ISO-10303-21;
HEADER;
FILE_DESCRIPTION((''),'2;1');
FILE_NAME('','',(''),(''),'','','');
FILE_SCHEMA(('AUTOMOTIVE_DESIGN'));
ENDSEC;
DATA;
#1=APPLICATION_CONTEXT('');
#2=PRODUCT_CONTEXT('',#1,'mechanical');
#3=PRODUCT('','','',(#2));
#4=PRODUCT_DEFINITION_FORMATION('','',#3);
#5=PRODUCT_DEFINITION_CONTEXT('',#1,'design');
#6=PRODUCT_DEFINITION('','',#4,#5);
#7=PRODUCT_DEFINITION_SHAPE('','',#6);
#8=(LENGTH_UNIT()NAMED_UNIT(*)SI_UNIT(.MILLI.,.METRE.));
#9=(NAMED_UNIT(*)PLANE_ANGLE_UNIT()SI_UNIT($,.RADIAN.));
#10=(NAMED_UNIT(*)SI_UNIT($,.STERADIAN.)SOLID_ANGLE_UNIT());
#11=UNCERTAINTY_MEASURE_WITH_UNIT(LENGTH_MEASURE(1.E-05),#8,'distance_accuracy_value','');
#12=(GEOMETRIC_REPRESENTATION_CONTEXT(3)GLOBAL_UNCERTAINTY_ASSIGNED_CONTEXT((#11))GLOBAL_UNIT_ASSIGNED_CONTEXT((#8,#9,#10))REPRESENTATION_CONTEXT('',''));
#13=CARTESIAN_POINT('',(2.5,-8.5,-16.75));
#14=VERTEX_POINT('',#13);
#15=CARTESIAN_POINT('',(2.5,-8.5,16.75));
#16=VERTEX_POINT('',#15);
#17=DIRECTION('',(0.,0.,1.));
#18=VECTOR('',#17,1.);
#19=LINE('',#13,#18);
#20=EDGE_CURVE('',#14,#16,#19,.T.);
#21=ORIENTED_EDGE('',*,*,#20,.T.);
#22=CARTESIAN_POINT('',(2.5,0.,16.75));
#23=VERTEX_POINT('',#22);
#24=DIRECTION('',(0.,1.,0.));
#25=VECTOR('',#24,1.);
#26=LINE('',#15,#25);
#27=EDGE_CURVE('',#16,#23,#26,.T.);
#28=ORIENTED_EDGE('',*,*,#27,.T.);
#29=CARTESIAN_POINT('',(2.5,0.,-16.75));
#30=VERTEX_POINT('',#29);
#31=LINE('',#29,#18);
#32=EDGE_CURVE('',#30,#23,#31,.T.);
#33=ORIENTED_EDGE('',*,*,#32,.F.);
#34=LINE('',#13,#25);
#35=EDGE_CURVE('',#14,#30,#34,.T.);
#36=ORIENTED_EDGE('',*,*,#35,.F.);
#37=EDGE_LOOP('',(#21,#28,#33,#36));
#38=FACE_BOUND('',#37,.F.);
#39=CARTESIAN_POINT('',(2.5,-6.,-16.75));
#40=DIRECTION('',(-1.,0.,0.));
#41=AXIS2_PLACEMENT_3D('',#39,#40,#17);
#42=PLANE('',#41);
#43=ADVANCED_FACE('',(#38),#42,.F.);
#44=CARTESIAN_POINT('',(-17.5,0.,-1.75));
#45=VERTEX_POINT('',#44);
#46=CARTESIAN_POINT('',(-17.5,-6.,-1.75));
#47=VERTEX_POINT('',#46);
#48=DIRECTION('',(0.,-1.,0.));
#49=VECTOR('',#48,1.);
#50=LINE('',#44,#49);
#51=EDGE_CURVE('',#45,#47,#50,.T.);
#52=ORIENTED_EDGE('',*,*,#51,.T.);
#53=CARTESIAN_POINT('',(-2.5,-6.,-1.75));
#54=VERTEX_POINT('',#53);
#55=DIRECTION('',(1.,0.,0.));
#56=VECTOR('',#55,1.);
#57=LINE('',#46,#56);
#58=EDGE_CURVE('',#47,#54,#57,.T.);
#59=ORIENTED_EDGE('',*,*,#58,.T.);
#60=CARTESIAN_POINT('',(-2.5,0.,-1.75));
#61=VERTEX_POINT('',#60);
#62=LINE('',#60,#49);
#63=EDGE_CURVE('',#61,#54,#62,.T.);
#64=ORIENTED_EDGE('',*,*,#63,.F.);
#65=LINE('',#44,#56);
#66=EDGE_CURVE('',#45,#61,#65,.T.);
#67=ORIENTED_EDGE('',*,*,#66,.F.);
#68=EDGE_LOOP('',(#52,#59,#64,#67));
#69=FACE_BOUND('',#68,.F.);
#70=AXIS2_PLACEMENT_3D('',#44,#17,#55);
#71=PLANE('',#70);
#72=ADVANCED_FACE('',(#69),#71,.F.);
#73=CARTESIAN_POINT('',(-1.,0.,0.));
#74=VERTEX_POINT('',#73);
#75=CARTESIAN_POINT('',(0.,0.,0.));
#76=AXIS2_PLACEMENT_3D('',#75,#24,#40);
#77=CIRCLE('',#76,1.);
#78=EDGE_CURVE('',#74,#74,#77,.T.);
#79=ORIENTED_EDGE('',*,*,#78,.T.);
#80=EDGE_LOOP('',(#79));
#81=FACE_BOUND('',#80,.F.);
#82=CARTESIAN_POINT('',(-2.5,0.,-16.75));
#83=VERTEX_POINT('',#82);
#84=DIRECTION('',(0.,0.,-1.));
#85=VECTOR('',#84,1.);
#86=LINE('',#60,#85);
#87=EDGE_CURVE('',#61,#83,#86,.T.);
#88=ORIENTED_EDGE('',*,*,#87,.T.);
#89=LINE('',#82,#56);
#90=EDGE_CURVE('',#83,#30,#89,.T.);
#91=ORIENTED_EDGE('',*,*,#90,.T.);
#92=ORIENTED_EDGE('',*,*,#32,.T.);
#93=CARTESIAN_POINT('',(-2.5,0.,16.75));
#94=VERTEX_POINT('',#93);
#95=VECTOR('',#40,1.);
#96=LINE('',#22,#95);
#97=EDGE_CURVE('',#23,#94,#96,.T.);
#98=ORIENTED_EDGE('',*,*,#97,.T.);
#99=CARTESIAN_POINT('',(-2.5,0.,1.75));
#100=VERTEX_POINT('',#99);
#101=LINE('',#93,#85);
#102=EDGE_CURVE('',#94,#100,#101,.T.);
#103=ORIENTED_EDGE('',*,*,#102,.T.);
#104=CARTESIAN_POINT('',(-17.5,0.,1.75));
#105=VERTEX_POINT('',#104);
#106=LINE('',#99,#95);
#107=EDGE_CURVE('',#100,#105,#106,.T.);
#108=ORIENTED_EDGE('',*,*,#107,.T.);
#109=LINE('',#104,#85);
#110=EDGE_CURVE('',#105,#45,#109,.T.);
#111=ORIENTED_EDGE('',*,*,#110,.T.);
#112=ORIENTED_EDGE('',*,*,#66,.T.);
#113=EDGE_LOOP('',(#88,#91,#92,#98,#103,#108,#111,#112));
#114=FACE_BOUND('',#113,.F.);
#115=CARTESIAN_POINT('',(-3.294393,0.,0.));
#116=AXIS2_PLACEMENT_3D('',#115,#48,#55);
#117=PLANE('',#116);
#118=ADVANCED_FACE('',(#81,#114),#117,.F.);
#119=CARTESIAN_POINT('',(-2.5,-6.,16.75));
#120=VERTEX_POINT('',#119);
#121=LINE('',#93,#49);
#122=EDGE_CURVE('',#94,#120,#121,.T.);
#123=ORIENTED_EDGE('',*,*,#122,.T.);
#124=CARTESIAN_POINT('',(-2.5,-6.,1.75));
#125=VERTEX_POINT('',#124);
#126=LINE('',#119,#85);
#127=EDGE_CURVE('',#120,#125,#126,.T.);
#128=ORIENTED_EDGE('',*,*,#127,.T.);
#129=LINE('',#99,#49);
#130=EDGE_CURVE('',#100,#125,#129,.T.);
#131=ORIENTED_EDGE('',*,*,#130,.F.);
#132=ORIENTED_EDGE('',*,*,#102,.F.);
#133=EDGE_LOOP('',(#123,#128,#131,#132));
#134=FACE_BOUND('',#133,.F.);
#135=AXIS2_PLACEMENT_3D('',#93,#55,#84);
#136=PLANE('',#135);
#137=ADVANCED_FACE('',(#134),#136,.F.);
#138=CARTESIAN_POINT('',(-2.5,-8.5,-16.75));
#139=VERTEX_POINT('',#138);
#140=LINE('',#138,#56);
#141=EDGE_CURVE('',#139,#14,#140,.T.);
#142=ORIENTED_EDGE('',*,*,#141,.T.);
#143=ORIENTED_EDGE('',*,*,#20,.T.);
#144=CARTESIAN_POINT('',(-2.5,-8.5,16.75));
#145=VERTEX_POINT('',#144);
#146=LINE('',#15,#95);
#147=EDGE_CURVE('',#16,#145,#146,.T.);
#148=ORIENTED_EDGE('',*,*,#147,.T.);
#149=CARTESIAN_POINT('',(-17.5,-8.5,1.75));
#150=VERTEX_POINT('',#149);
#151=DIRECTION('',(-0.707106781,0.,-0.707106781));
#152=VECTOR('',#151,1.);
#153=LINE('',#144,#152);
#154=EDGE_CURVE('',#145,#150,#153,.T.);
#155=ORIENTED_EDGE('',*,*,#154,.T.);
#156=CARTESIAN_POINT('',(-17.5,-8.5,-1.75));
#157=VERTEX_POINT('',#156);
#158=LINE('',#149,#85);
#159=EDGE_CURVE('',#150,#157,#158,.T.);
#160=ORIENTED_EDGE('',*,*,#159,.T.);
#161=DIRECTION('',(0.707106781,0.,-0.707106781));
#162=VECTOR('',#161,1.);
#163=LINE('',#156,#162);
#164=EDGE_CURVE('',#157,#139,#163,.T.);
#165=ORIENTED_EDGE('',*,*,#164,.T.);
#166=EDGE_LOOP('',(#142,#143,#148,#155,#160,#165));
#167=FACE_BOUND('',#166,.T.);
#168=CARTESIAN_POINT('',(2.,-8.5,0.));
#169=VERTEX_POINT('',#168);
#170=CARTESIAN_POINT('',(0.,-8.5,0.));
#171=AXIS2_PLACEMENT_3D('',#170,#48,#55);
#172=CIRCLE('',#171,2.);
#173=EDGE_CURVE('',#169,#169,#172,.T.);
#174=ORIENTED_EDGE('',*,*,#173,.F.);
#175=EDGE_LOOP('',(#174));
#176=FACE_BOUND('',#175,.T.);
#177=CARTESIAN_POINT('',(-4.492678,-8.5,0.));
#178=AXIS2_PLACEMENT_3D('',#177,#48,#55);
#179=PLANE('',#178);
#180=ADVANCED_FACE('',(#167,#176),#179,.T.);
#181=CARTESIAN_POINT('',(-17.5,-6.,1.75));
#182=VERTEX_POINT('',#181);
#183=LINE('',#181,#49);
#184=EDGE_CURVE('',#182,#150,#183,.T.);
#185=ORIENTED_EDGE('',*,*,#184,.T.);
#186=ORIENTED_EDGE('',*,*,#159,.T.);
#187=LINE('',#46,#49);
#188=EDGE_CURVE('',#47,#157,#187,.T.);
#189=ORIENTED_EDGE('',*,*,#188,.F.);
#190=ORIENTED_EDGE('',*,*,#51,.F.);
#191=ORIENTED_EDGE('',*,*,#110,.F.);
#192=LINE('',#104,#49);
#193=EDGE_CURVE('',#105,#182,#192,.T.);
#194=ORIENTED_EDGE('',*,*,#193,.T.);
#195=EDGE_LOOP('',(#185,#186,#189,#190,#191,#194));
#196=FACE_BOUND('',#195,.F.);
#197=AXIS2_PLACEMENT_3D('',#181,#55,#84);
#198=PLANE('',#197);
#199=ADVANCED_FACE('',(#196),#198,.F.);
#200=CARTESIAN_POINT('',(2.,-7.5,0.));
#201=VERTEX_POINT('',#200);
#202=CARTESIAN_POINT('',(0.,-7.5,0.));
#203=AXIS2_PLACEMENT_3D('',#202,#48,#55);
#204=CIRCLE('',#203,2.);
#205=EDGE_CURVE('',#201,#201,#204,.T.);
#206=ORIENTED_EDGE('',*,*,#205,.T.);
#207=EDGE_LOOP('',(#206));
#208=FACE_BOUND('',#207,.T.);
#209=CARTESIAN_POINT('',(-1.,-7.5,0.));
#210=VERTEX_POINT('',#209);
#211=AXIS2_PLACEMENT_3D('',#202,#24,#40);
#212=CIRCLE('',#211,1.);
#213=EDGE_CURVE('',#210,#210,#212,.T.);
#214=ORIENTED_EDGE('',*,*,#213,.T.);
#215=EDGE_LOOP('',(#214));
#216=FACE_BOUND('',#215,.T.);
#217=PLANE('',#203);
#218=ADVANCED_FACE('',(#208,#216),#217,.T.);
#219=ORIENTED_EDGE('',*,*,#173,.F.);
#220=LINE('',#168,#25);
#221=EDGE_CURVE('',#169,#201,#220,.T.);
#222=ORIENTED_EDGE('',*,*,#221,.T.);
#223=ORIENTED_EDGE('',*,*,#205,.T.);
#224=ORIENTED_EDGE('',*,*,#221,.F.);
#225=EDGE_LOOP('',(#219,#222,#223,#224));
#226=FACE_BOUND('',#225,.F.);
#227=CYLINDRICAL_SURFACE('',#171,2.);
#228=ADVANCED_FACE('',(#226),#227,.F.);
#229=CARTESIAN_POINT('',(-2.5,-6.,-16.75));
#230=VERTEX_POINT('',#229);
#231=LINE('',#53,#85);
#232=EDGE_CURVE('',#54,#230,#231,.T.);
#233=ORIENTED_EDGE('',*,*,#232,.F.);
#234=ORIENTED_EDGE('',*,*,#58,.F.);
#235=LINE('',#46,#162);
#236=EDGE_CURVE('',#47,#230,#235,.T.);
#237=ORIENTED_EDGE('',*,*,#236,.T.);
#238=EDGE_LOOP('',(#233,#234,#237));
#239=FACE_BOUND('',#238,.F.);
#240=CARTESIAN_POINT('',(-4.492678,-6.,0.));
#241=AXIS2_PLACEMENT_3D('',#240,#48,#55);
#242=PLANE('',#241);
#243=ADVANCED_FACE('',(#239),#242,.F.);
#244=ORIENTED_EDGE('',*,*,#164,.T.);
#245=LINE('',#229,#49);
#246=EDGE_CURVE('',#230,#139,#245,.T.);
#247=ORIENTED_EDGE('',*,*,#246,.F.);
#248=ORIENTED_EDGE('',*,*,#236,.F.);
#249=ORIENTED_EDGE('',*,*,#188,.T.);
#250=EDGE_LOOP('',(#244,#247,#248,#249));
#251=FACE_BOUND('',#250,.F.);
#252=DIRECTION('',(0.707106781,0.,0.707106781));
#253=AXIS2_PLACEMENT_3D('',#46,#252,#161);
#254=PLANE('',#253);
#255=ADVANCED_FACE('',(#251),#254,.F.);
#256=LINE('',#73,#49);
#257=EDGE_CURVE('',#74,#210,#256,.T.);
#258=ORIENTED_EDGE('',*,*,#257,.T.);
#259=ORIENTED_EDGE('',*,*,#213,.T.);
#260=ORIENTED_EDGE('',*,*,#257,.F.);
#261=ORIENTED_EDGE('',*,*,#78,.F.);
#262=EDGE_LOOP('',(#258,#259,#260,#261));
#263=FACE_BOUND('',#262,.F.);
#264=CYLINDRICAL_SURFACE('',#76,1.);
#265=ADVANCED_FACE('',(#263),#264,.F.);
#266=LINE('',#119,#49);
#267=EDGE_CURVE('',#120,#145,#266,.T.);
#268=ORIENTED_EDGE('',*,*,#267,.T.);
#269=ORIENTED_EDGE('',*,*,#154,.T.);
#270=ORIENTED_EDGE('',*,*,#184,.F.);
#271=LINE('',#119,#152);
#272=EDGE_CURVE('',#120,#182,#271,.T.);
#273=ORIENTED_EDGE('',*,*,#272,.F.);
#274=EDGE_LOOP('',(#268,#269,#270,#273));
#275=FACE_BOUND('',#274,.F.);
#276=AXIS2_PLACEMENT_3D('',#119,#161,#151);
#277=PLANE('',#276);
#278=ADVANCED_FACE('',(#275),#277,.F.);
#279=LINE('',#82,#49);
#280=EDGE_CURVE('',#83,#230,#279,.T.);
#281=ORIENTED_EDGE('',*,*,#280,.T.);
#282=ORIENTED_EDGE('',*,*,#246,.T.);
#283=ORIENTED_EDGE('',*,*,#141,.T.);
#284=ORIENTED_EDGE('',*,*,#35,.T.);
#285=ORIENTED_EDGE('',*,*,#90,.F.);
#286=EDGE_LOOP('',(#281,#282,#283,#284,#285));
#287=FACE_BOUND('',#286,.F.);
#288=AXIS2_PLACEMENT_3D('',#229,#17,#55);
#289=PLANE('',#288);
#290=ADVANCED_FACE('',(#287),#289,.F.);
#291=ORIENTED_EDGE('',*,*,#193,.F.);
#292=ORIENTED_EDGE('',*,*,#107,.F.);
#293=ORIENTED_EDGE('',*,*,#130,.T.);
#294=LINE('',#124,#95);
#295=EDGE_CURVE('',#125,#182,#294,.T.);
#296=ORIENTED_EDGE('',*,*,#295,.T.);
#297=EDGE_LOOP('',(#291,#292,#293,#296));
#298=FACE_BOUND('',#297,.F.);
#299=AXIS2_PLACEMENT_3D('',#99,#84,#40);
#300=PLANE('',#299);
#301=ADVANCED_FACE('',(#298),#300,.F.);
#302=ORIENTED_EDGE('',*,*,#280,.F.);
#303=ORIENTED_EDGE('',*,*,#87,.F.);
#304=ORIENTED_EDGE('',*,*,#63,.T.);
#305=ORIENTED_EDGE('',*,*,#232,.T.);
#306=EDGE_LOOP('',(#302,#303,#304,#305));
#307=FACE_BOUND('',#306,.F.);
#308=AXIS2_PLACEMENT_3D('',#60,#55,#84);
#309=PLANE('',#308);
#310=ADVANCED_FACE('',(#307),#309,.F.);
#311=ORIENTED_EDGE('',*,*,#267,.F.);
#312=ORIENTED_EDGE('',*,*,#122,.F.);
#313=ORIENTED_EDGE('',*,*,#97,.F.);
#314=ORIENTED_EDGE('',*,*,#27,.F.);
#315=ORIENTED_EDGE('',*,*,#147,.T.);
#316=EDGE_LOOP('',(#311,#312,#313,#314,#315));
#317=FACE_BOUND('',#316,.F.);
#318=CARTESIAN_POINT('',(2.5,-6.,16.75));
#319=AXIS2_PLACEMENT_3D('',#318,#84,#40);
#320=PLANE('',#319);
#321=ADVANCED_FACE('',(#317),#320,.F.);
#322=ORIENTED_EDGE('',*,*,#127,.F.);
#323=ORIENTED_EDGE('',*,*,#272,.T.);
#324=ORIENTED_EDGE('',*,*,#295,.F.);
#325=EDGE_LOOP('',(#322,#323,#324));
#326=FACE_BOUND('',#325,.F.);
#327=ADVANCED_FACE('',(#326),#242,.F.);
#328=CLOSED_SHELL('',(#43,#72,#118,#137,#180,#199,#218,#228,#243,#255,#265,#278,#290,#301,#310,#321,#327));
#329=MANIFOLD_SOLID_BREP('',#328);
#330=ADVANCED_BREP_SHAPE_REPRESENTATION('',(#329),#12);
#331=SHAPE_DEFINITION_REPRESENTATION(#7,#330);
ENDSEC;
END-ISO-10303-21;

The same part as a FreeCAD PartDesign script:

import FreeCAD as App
import Part
import Sketcher
from FreeCAD import Vector


def add_polygon(sketch, points):
    """Adds a closed chain of lines whose ends are joined by coincident constraints."""
    first, n = sketch.GeometryCount, len(points)
    for a, b in zip(points, points[1:] + points[:1]):
        sketch.addGeometry(Part.LineSegment(App.Vector(*a, 0), App.Vector(*b, 0)), False)
    for i in range(n):
        sketch.addConstraint(Sketcher.Constraint("Coincident", first + i, 2, first + (i + 1) % n, 1))

doc = App.newDocument("Part")
body = doc.addObject("PartDesign::Body", "Body")

sketch1 = body.newObject("Sketcher::SketchObject", "Sketch")
sketch1.AttachmentSupport = (doc.getObject("XZ_Plane"), [""])
sketch1.MapMode = "FlatFace"
add_polygon(sketch1, [(2.5, 16.8), (-2.5, 16.8), (-2.5, 1.8), (-17.5, 1.8), (-17.5, -1.8), (-2.5, -1.8), (-2.5, -16.8), (2.5, -16.8)])
sketch1.addConstraint([
    Sketcher.Constraint("Horizontal", 0),
    Sketcher.Constraint("Vertical", 1),
    Sketcher.Constraint("Horizontal", 2),
    Sketcher.Constraint("Vertical", 3),
    Sketcher.Constraint("Horizontal", 4),
    Sketcher.Constraint("Vertical", 5),
    Sketcher.Constraint("Horizontal", 6),
    Sketcher.Constraint("Vertical", 7),
    Sketcher.Constraint("Symmetric", 0, 2, 6, 2, -1, 1),
    Sketcher.Constraint("Symmetric", 1, 2, 4, 2, -1),
    Sketcher.Constraint("Equal", 4, 1),
    Sketcher.Constraint("DistanceX", 0, 2, 0, 1, 5.0),
    Sketcher.Constraint("DistanceX", 2, 2, 2, 1, 15.0),
    Sketcher.Constraint("DistanceY", 3, 2, 3, 1, 3.5),
])
pad1 = body.newObject("PartDesign::Pad", "Pad")
pad1.Profile = sketch1
pad1.Length = 6

sketch2 = body.newObject("Sketcher::SketchObject", "Sketch001")
sketch2.AttachmentSupport = (doc.getObject("XZ_Plane"), [""])
sketch2.MapMode = "FlatFace"
sketch2.AttachmentOffset = App.Placement(Vector(0, 0, 6), App.Rotation())
add_polygon(sketch2, [(-2.5, 16.8), (-17.5, 1.8), (-17.5, -1.8), (-2.5, -16.8), (2.5, -16.8), (2.5, 16.8)])
sketch2.addConstraint([
    Sketcher.Constraint("Vertical", 1),
    Sketcher.Constraint("Horizontal", 3),
    Sketcher.Constraint("Vertical", 4),
    Sketcher.Constraint("Horizontal", 5),
    Sketcher.Constraint("Symmetric", 2, 2, 4, 2, -1, 1),
    Sketcher.Constraint("Perpendicular", 0, 2),
    Sketcher.Constraint("Vertical", 2, 2, 5, 2),
    Sketcher.Constraint("Equal", 0, 2),
    Sketcher.Constraint("DistanceX", 3, 1, 3, 2, 5.0),
    Sketcher.Constraint("DistanceY", 1, 2, 1, 1, 3.5),
    Sketcher.Constraint("DistanceY", 4, 1, 4, 2, 33.5),
])
pad2 = body.newObject("PartDesign::Pad", "Pad001")
pad2.Profile = sketch2
pad2.Length = 2.5

sketch3 = body.newObject("Sketcher::SketchObject", "Sketch002")
sketch3.AttachmentSupport = (doc.getObject("XZ_Plane"), [""])
sketch3.MapMode = "FlatFace"
sketch3.addGeometry(Part.Circle(Vector(0, 0, 0), Vector(0, 0, 1), 1), False)
sketch3.addConstraint([
    Sketcher.Constraint("Coincident", 0, 3, -1, 1),
    Sketcher.Constraint("Diameter", 0, 2.0),
])
pocket1 = body.newObject("PartDesign::Pocket", "Pocket")
pocket1.Profile = sketch3
pocket1.Type = "ThroughAll"
pocket1.Reversed = True

sketch4 = body.newObject("Sketcher::SketchObject", "Sketch003")
sketch4.AttachmentSupport = (doc.getObject("XZ_Plane"), [""])
sketch4.MapMode = "FlatFace"
sketch4.AttachmentOffset = App.Placement(Vector(0, 0, 8.5), App.Rotation())
sketch4.addGeometry(Part.Circle(Vector(0, 0, 0), Vector(0, 0, 1), 2), False)
sketch4.addConstraint([
    Sketcher.Constraint("Coincident", 0, 3, -1, 1),
    Sketcher.Constraint("Diameter", 0, 4.0),
])
pocket2 = body.newObject("PartDesign::Pocket", "Pocket001")
pocket2.Profile = sketch4
pocket2.Length = 1

doc.recompute()
